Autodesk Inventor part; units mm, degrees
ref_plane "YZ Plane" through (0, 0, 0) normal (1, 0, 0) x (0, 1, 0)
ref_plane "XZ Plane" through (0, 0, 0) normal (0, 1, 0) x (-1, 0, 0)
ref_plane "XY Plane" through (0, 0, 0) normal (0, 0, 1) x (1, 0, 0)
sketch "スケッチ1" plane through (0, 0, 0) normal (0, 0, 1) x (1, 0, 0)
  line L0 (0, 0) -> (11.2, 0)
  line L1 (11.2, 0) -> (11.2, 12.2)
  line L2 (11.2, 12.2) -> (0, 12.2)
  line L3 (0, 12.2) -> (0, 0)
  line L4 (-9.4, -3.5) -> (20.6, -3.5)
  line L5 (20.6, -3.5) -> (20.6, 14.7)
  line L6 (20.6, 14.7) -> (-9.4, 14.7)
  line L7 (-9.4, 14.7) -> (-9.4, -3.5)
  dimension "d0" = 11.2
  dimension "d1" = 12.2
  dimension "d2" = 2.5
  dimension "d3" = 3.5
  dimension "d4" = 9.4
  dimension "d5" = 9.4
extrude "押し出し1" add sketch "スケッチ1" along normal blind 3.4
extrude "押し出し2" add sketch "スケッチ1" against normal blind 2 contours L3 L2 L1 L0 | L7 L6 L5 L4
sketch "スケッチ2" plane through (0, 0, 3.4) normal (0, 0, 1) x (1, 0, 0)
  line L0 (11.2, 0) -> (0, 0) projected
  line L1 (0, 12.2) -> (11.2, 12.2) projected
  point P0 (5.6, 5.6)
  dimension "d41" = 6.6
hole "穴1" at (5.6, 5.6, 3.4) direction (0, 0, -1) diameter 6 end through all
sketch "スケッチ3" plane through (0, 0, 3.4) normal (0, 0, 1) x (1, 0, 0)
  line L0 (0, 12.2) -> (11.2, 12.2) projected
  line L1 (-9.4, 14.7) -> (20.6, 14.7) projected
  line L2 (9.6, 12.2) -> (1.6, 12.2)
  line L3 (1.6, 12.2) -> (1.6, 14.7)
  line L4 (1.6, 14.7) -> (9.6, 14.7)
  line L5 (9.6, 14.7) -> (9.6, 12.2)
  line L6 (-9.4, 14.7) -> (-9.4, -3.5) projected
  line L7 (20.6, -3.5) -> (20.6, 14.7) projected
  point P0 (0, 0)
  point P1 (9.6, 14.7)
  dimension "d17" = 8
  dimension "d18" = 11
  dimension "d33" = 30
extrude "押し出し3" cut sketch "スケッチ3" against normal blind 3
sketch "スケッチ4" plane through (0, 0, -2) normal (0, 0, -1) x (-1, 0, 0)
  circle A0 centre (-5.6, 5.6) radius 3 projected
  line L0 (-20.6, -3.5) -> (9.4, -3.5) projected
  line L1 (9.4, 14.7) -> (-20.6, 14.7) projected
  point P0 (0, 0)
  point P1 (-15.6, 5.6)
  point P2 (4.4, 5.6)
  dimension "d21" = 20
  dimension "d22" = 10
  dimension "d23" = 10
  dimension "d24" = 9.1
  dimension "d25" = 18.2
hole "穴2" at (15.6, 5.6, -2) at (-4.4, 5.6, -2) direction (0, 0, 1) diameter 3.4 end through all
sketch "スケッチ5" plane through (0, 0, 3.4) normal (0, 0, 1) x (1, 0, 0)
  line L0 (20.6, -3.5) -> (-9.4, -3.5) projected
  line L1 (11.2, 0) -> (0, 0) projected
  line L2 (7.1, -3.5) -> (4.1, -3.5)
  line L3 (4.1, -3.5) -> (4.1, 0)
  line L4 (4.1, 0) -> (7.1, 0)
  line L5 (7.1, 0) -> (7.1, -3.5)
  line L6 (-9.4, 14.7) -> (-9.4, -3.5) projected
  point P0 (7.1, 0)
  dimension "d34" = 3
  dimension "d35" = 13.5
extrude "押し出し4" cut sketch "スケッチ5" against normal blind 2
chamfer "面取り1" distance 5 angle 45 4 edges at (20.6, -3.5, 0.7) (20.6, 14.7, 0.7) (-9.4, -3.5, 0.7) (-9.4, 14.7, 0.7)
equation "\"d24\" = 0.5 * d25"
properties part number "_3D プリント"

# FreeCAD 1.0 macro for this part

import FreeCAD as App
import Part
import Sketcher
from FreeCAD import Vector
Q = App.Units.Quantity


def edges_at(feature, points):
    """Names of the edges that pass closest to the given points."""
    edges = feature.Shape.Edges
    near = lambda p: min(range(len(edges)), key=lambda i: edges[i].distToShape(Part.Vertex(*p))[0])
    return sorted({f"Edge{near(p) + 1}" for p in points})

doc = App.newDocument("Part")
body = doc.addObject("PartDesign::Body", "Body")

sketch1 = body.newObject("Sketcher::SketchObject", "Sketch")
sketch1.AttachmentSupport = (doc.getObject("XY_Plane"), [""])
sketch1.MapMode = "FlatFace"
sketch1.addGeometry(Part.LineSegment(Vector(-9, 15, 0), Vector(-9, -4, 0)), False)
sketch1.addGeometry(Part.LineSegment(Vector(-9, -4, 0), Vector(21, -4, 0)), False)
sketch1.addGeometry(Part.LineSegment(Vector(21, -4, 0), Vector(21, 15, 0)), False)
sketch1.addGeometry(Part.LineSegment(Vector(21, 15, 0), Vector(-9, 15, 0)), False)
sketch1.addGeometry(Part.LineSegment(Vector(11, 0, 0), Vector(0, 0, 0)), False)
sketch1.addGeometry(Part.LineSegment(Vector(0, 0, 0), Vector(0, 12, 0)), False)
sketch1.addGeometry(Part.LineSegment(Vector(0, 12, 0), Vector(11, 12, 0)), False)
sketch1.addGeometry(Part.LineSegment(Vector(11, 12, 0), Vector(11, 0, 0)), False)
sketch1.addConstraint(Sketcher.Constraint("Coincident", 0, 2, 1, 1))
sketch1.addConstraint(Sketcher.Constraint("Coincident", 1, 2, 2, 1))
sketch1.addConstraint(Sketcher.Constraint("Coincident", 2, 2, 3, 1))
sketch1.addConstraint(Sketcher.Constraint("Coincident", 3, 2, 0, 1))
sketch1.addConstraint(Sketcher.Constraint("Coincident", 4, 2, 5, 1))
sketch1.addConstraint(Sketcher.Constraint("Coincident", 5, 2, 6, 1))
sketch1.addConstraint(Sketcher.Constraint("Coincident", 6, 2, 7, 1))
sketch1.addConstraint(Sketcher.Constraint("Coincident", 7, 2, 4, 1))
sketch1.addConstraint(Sketcher.Constraint("Vertical", 0))
sketch1.addConstraint(Sketcher.Constraint("Horizontal", 1))
sketch1.addConstraint(Sketcher.Constraint("Vertical", 2))
sketch1.addConstraint(Sketcher.Constraint("Horizontal", 3))
sketch1.addConstraint(Sketcher.Constraint("Horizontal", 4))
sketch1.addConstraint(Sketcher.Constraint("Vertical", 5))
sketch1.addConstraint(Sketcher.Constraint("Horizontal", 6))
sketch1.addConstraint(Sketcher.Constraint("Vertical", 7))
sketch1.addConstraint(Sketcher.Constraint("Coincident", 4, 2, -1, 1))
sketch1.addConstraint(Sketcher.Constraint("DistanceX", 4, 2, 4, 1, Q("11.2 mm")))
sketch1.addConstraint(Sketcher.Constraint("DistanceY", 5, 1, 5, 2, Q("12.2 mm")))
sketch1.addConstraint(Sketcher.Constraint("DistanceX", 0, 2, -1, 1, Q("9.4 mm")))
sketch1.addConstraint(Sketcher.Constraint("DistanceY", 0, 2, -1, 1, Q("3.5 mm")))
sketch1.addConstraint(Sketcher.Constraint("DistanceY", 5, 2, 3, 2, Q("2.5 mm")))
sketch1.addConstraint(Sketcher.Constraint("DistanceX", 6, 2, 2, 2, Q("9.4 mm")))
pad1 = body.newObject("PartDesign::Pad", "Pad")
pad1.Profile = sketch1
pad1.Length = 3.4

sketch2 = body.newObject("Sketcher::SketchObject", "Sketch001")
sketch2.AttachmentSupport = (doc.getObject("XY_Plane"), [""])
sketch2.MapMode = "FlatFace"
sketch2.addGeometry(Part.LineSegment(Vector(-9, 15, 0), Vector(-9, -4, 0)), False)
sketch2.addGeometry(Part.LineSegment(Vector(-9, -4, 0), Vector(21, -4, 0)), False)
sketch2.addGeometry(Part.LineSegment(Vector(21, -4, 0), Vector(21, 15, 0)), False)
sketch2.addGeometry(Part.LineSegment(Vector(21, 15, 0), Vector(-9, 15, 0)), False)
sketch2.addConstraint(Sketcher.Constraint("Coincident", 0, 2, 1, 1))
sketch2.addConstraint(Sketcher.Constraint("Coincident", 1, 2, 2, 1))
sketch2.addConstraint(Sketcher.Constraint("Coincident", 2, 2, 3, 1))
sketch2.addConstraint(Sketcher.Constraint("Coincident", 3, 2, 0, 1))
sketch2.addConstraint(Sketcher.Constraint("Vertical", 0))
sketch2.addConstraint(Sketcher.Constraint("Horizontal", 1))
sketch2.addConstraint(Sketcher.Constraint("Vertical", 2))
sketch2.addConstraint(Sketcher.Constraint("Horizontal", 3))
sketch2.addConstraint(Sketcher.Constraint("DistanceX", 0, 2, -1, 1, Q("9.4 mm")))
sketch2.addConstraint(Sketcher.Constraint("DistanceY", 0, 2, -1, 1, Q("3.5 mm")))
sketch2.addConstraint(Sketcher.Constraint("DistanceX", 1, 1, 1, 2, Q("30 mm")))
sketch2.addConstraint(Sketcher.Constraint("DistanceY", 0, 2, 0, 1, Q("18.2 mm")))
pad2 = body.newObject("PartDesign::Pad", "Pad001")
pad2.Profile = sketch2
pad2.Length = 2
pad2.Reversed = True

sketch3 = body.newObject("Sketcher::SketchObject", "Sketch002")
sketch3.AttachmentSupport = (doc.getObject("XY_Plane"), [""])
sketch3.MapMode = "FlatFace"
sketch3.AttachmentOffset = App.Placement(Vector(0, 0, 3.4), App.Rotation())
sketch3.addGeometry(Part.Circle(Vector(5.6, 5.6, 0), Vector(0, 0, 1), 3), False)
sketch3.addConstraint(Sketcher.Constraint("Diameter", 0, Q("6 mm")))
sketch3.addConstraint(Sketcher.Constraint("DistanceX", -1, 1, 0, 3, Q("5.6 mm")))
sketch3.addConstraint(Sketcher.Constraint("DistanceY", -1, 1, 0, 3, Q("5.6 mm")))
doc.recompute()
hole = body.newObject("PartDesign::Hole", "Hole")
hole.Profile = sketch3
hole.ThreadType = "None"
hole.Diameter = 6
hole.DepthType = "ThroughAll"

sketch4 = body.newObject("Sketcher::SketchObject", "Sketch003")
sketch4.AttachmentSupport = (doc.getObject("XY_Plane"), [""])
sketch4.MapMode = "FlatFace"
sketch4.AttachmentOffset = App.Placement(Vector(0, 0, 3.4), App.Rotation())
sketch4.addGeometry(Part.LineSegment(Vector(1.6, 14.7, 0), Vector(1.6, 12.2, 0)), False)
sketch4.addGeometry(Part.LineSegment(Vector(1.6, 12.2, 0), Vector(9.6, 12.2, 0)), False)
sketch4.addGeometry(Part.LineSegment(Vector(9.6, 12.2, 0), Vector(9.6, 14.7, 0)), False)
sketch4.addGeometry(Part.LineSegment(Vector(9.6, 14.7, 0), Vector(1.6, 14.7, 0)), False)
sketch4.addConstraint(Sketcher.Constraint("Coincident", 0, 2, 1, 1))
sketch4.addConstraint(Sketcher.Constraint("Coincident", 1, 2, 2, 1))
sketch4.addConstraint(Sketcher.Constraint("Coincident", 2, 2, 3, 1))
sketch4.addConstraint(Sketcher.Constraint("Coincident", 3, 2, 0, 1))
sketch4.addConstraint(Sketcher.Constraint("Vertical", 0))
sketch4.addConstraint(Sketcher.Constraint("Horizontal", 1))
sketch4.addConstraint(Sketcher.Constraint("Vertical", 2))
sketch4.addConstraint(Sketcher.Constraint("Horizontal", 3))
sketch4.addConstraint(Sketcher.Constraint("DistanceX", 1, 1, 1, 2, Q("8 mm")))
sketch4.addConstraint(Sketcher.Constraint("DistanceY", 0, 2, 0, 1, Q("2.5 mm")))
sketch4.addConstraint(Sketcher.Constraint("DistanceX", -1, 1, 0, 2, Q("1.6 mm")))
sketch4.addConstraint(Sketcher.Constraint("DistanceY", -1, 1, 0, 2, Q("12.2 mm")))
pocket1 = body.newObject("PartDesign::Pocket", "Pocket")
pocket1.Profile = sketch4
pocket1.Length = 3

sketch5 = body.newObject("Sketcher::SketchObject", "Sketch004")
sketch5.AttachmentSupport = (doc.getObject("XY_Plane"), [""])
sketch5.MapMode = "FlatFace"
sketch5.AttachmentOffset = App.Placement(Vector(0, 0, -2), App.Rotation())
sketch5.addGeometry(Part.Circle(Vector(15.6, 5.6, 0), Vector(0, 0, 1), 1.7), False)
sketch5.addGeometry(Part.Circle(Vector(-4.4, 5.6, 0), Vector(0, 0, 1), 1.7), False)
sketch5.addConstraint(Sketcher.Constraint("Equal", 0, 1))
sketch5.addConstraint(Sketcher.Constraint("Horizontal", 0, 3, 1, 3))
sketch5.addConstraint(Sketcher.Constraint("Diameter", 0, Q("3.4 mm")))
sketch5.addConstraint(Sketcher.Constraint("DistanceX", 1, 3, 0, 3, Q("20 mm")))
sketch5.addConstraint(Sketcher.Constraint("DistanceX", -1, 1, 0, 3, Q("15.6 mm")))
sketch5.addConstraint(Sketcher.Constraint("DistanceY", -1, 1, 0, 3, Q("5.6 mm")))
doc.recompute()
hole2 = body.newObject("PartDesign::Hole", "Hole001")
hole2.Profile = sketch5
hole2.ThreadType = "None"
hole2.Diameter = 3.4
hole2.DepthType = "ThroughAll"
hole2.Reversed = True

sketch6 = body.newObject("Sketcher::SketchObject", "Sketch005")
sketch6.AttachmentSupport = (doc.getObject("XY_Plane"), [""])
sketch6.MapMode = "FlatFace"
sketch6.AttachmentOffset = App.Placement(Vector(0, 0, 3.4), App.Rotation())
sketch6.addGeometry(Part.LineSegment(Vector(4.1, -3.5, 0), Vector(7.1, -3.5, 0)), False)
sketch6.addGeometry(Part.LineSegment(Vector(7.1, -3.5, 0), Vector(7.1, 0, 0)), False)
sketch6.addGeometry(Part.LineSegment(Vector(7.1, 0, 0), Vector(4.1, 0, 0)), False)
sketch6.addGeometry(Part.LineSegment(Vector(4.1, 0, 0), Vector(4.1, -3.5, 0)), False)
sketch6.addConstraint(Sketcher.Constraint("Coincident", 0, 2, 1, 1))
sketch6.addConstraint(Sketcher.Constraint("Coincident", 1, 2, 2, 1))
sketch6.addConstraint(Sketcher.Constraint("Coincident", 2, 2, 3, 1))
sketch6.addConstraint(Sketcher.Constraint("Coincident", 3, 2, 0, 1))
sketch6.addConstraint(Sketcher.Constraint("Horizontal", 0))
sketch6.addConstraint(Sketcher.Constraint("Vertical", 1))
sketch6.addConstraint(Sketcher.Constraint("Horizontal", 2))
sketch6.addConstraint(Sketcher.Constraint("Vertical", 3))
sketch6.addConstraint(Sketcher.Constraint("PointOnObject", 1, 2, -1))
sketch6.addConstraint(Sketcher.Constraint("DistanceX", 0, 1, 0, 2, Q("3 mm")))
sketch6.addConstraint(Sketcher.Constraint("DistanceY", 1, 1, 1, 2, Q("3.5 mm")))
sketch6.addConstraint(Sketcher.Constraint("DistanceX", -1, 1, 0, 2, Q("7.1 mm")))
pocket2 = body.newObject("PartDesign::Pocket", "Pocket001")
pocket2.Profile = sketch6
pocket2.Length = 2
doc.recompute()

chamfer = body.newObject("PartDesign::Chamfer", "Chamfer")
chamfer.Base = (pocket2, edges_at(pocket2, [
    (20.6, -3.5, 0.7),
    (20.6, 14.7, 0.7),
    (-9.4, -3.5, 0.7),
    (-9.4, 14.7, 0.7),
]))
chamfer.Size = 5

doc.recompute()
